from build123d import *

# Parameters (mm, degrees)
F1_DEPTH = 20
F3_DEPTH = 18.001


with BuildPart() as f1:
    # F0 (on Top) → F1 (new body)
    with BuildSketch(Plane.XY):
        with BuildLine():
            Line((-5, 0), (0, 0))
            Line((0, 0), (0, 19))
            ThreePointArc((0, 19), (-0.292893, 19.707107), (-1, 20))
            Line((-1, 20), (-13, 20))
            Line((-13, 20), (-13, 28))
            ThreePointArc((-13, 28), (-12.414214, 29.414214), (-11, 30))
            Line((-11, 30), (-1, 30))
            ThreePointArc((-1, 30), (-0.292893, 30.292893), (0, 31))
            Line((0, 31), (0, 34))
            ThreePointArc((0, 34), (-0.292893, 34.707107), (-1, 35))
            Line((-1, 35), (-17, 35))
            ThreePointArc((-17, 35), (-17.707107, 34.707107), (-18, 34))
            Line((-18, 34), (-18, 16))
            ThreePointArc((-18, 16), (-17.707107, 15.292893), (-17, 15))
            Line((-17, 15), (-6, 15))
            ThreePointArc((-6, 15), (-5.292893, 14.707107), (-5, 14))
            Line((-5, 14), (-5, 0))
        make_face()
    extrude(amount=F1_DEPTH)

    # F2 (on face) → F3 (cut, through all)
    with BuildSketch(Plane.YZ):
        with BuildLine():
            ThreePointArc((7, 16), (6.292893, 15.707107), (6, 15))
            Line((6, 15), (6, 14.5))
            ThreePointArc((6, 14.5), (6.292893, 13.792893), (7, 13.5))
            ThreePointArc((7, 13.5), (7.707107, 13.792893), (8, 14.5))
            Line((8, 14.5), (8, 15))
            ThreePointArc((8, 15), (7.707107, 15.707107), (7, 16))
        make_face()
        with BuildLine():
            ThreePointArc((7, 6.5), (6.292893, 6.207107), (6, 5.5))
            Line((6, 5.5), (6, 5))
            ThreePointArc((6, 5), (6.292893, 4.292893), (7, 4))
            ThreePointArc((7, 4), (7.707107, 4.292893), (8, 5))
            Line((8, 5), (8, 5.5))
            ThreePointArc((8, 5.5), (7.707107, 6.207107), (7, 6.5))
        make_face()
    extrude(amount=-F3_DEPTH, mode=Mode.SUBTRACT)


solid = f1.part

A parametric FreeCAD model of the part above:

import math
import FreeCAD as App
import Part
import Sketcher

doc = App.newDocument("Part")
body = doc.addObject("PartDesign::Body", "Body")

# Sketch on XY plane
sketch1 = doc.addObject("Sketcher::SketchObject", "Sketch")
body.addObject(sketch1)
sketch1.AttachmentSupport = (doc.XY_Plane, [""])
sketch1.MapMode = "FlatFace"
sketch1.addGeometry([
    Part.LineSegment(App.Vector(-5, 0, 0), App.Vector(0, 0, 0)),  # 0
    Part.LineSegment(App.Vector(0, 0, 0), App.Vector(0, 19, 0)),  # 1
    Part.ArcOfCircle(Part.Circle(App.Vector(-1, 19, 0), App.Vector(0, 0, 1), 1), math.radians(0), math.radians(90)),  # 2
    Part.LineSegment(App.Vector(-1, 20, 0), App.Vector(-13, 20, 0)),  # 3
    Part.LineSegment(App.Vector(-13, 20, 0), App.Vector(-13, 28, 0)),  # 4
    Part.ArcOfCircle(Part.Circle(App.Vector(-11, 28, 0), App.Vector(0, 0, 1), 2), math.radians(90), math.radians(180)),  # 5
    Part.LineSegment(App.Vector(-11, 30, 0), App.Vector(-1, 30, 0)),  # 6
    Part.ArcOfCircle(Part.Circle(App.Vector(-1, 31, 0), App.Vector(0, 0, 1), 1), math.radians(-90), math.radians(0)),  # 7
    Part.LineSegment(App.Vector(0, 31, 0), App.Vector(0, 34, 0)),  # 8
    Part.ArcOfCircle(Part.Circle(App.Vector(-1, 34, 0), App.Vector(0, 0, 1), 1), math.radians(0), math.radians(90)),  # 9
    Part.LineSegment(App.Vector(-1, 35, 0), App.Vector(-17, 35, 0)),  # 10
    Part.ArcOfCircle(Part.Circle(App.Vector(-17, 34, 0), App.Vector(0, 0, 1), 1), math.radians(90), math.radians(180)),  # 11
    Part.LineSegment(App.Vector(-18, 34, 0), App.Vector(-18, 16, 0)),  # 12
    Part.ArcOfCircle(Part.Circle(App.Vector(-17, 16, 0), App.Vector(0, 0, 1), 1), math.radians(180), math.radians(270)),  # 13
    Part.LineSegment(App.Vector(-17, 15, 0), App.Vector(-6, 15, 0)),  # 14
    Part.ArcOfCircle(Part.Circle(App.Vector(-6, 14, 0), App.Vector(0, 0, 1), 1), math.radians(0), math.radians(90)),  # 15
    Part.LineSegment(App.Vector(-5, 14, 0), App.Vector(-5, 0, 0)),  # 16
], False)
sketch1.addConstraint([
    Sketcher.Constraint("Coincident", 0, 2, 1, 1),
    Sketcher.Constraint("Tangent", 1, 2, 2, 1),
    Sketcher.Constraint("Tangent", 2, 2, 3, 1),
    Sketcher.Constraint("Coincident", 3, 2, 4, 1),
    Sketcher.Constraint("Tangent", 4, 2, 5, 2),
    Sketcher.Constraint("Tangent", 5, 1, 6, 1),
    Sketcher.Constraint("Tangent", 6, 2, 7, 1),
    Sketcher.Constraint("Tangent", 7, 2, 8, 1),
    Sketcher.Constraint("Tangent", 8, 2, 9, 1),
    Sketcher.Constraint("Tangent", 9, 2, 10, 1),
    Sketcher.Constraint("Tangent", 10, 2, 11, 1),
    Sketcher.Constraint("Tangent", 11, 2, 12, 1),
    Sketcher.Constraint("Tangent", 12, 2, 13, 1),
    Sketcher.Constraint("Tangent", 13, 2, 14, 1),
    Sketcher.Constraint("Tangent", 14, 2, 15, 2),
    Sketcher.Constraint("Tangent", 15, 1, 16, 1),
    Sketcher.Constraint("Coincident", 16, 2, 0, 1),
    Sketcher.Constraint("Horizontal", 0),
    Sketcher.Constraint("Vertical", 1),
    Sketcher.Constraint("Horizontal", 3),
    Sketcher.Constraint("Vertical", 4),
    Sketcher.Constraint("Horizontal", 6),
    Sketcher.Constraint("Vertical", 8),
    Sketcher.Constraint("Horizontal", 10),
    Sketcher.Constraint("Vertical", 12),
    Sketcher.Constraint("Horizontal", 14),
    Sketcher.Constraint("Vertical", 16),
    Sketcher.Constraint("Coincident", 0, 2, -1, 1),
    Sketcher.Constraint("Equal", 2, 7),
    Sketcher.Constraint("Equal", 7, 9),
    Sketcher.Constraint("Equal", 9, 11),
    Sketcher.Constraint("Equal", 11, 13),
    Sketcher.Constraint("Equal", 13, 15),
    Sketcher.Constraint("PointOnObject", 7, 2, -2),
    Sketcher.Constraint("Radius", 2, 0.999999),
    Sketcher.Constraint("Radius", 5, 1.999999),
    Sketcher.Constraint("DistanceX", 0, 1, 0, 2, 5.0),
    Sketcher.Constraint("DistanceX", 3, 2, 3, 1, 12.0),
    Sketcher.Constraint("DistanceX", 10, 2, 10, 1, 16.0),
    Sketcher.Constraint("DistanceY", 1, 1, 1, 2, 19.0),
    Sketcher.Constraint("DistanceY", 4, 1, 4, 2, 8.0),
    Sketcher.Constraint("DistanceY", 8, 1, 8, 2, 3.0),
    Sketcher.Constraint("DistanceY", 12, 2, 12, 1, 18.0),
])
pad1 = doc.addObject("PartDesign::Pad", "Pad")
body.addObject(pad1)
pad1.Profile = sketch1
pad1.Length = 20

# Sketch on YZ plane
sketch2 = doc.addObject("Sketcher::SketchObject", "Sketch001")
body.addObject(sketch2)
sketch2.AttachmentSupport = (doc.YZ_Plane, [""])
sketch2.MapMode = "FlatFace"
sketch2.addGeometry([
    Part.ArcOfCircle(Part.Circle(App.Vector(7, 15, 0), App.Vector(0, 0, 1), 1), math.radians(90), math.radians(180)),  # 0
    Part.LineSegment(App.Vector(6, 15, 0), App.Vector(6, 14.5, 0)),  # 1
    Part.ArcOfCircle(Part.Circle(App.Vector(7, 14.5, 0), App.Vector(0, 0, 1), 1), math.radians(180), math.radians(270)),  # 2
    Part.ArcOfCircle(Part.Circle(App.Vector(7, 14.5, 0), App.Vector(0, 0, 1), 1), math.radians(-90), math.radians(0)),  # 3
    Part.LineSegment(App.Vector(8, 14.5, 0), App.Vector(8, 15, 0)),  # 4
    Part.ArcOfCircle(Part.Circle(App.Vector(7, 15, 0), App.Vector(0, 0, 1), 1), math.radians(0), math.radians(90)),  # 5
    Part.ArcOfCircle(Part.Circle(App.Vector(7, 5.5, 0), App.Vector(0, 0, 1), 1), math.radians(90), math.radians(180)),  # 6
    Part.LineSegment(App.Vector(6, 5.5, 0), App.Vector(6, 5, 0)),  # 7
    Part.ArcOfCircle(Part.Circle(App.Vector(7, 5, 0), App.Vector(0, 0, 1), 1), math.radians(180), math.radians(270)),  # 8
    Part.ArcOfCircle(Part.Circle(App.Vector(7, 5, 0), App.Vector(0, 0, 1), 1), math.radians(-90), math.radians(0)),  # 9
    Part.LineSegment(App.Vector(8, 5, 0), App.Vector(8, 5.5, 0)),  # 10
    Part.ArcOfCircle(Part.Circle(App.Vector(7, 5.5, 0), App.Vector(0, 0, 1), 1), math.radians(0), math.radians(90)),  # 11
], False)
sketch2.addConstraint([
    Sketcher.Constraint("Tangent", 0, 2, 1, 1),
    Sketcher.Constraint("Tangent", 1, 2, 2, 1),
    Sketcher.Constraint("Tangent", 2, 2, 3, 1),
    Sketcher.Constraint("Tangent", 3, 2, 4, 1),
    Sketcher.Constraint("Tangent", 4, 2, 5, 1),
    Sketcher.Constraint("Tangent", 5, 2, 0, 1),
    Sketcher.Constraint("Tangent", 6, 2, 7, 1),
    Sketcher.Constraint("Tangent", 7, 2, 8, 1),
    Sketcher.Constraint("Tangent", 8, 2, 9, 1),
    Sketcher.Constraint("Tangent", 9, 2, 10, 1),
    Sketcher.Constraint("Tangent", 10, 2, 11, 1),
    Sketcher.Constraint("Tangent", 11, 2, 6, 1),
    Sketcher.Constraint("Vertical", 1),
    Sketcher.Constraint("Vertical", 4),
    Sketcher.Constraint("Vertical", 7),
    Sketcher.Constraint("Vertical", 10),
    Sketcher.Constraint("Equal", 0, 2),
    Sketcher.Constraint("Equal", 2, 3),
    Sketcher.Constraint("Equal", 5, 6),
    Sketcher.Constraint("Equal", 6, 8),
    Sketcher.Constraint("Equal", 8, 9),
    Sketcher.Constraint("Vertical", 5, 3, 6, 3),
    Sketcher.Constraint("Vertical", 11, 3, 2, 2),
    Sketcher.Constraint("Vertical", 2, 2, 5, 2),
    Sketcher.Constraint("Vertical", 5, 2, 8, 2),
    Sketcher.Constraint("Vertical", 8, 2, 11, 2),
    Sketcher.Constraint("Equal", 4, 7),
    Sketcher.Constraint("Radius", 0, 0.999999),
    Sketcher.Constraint("DistanceY", 1, 2, 1, 1, 0.5),
    Sketcher.Constraint("DistanceX", -1, 1, 0, 3, 6.999999),
    Sketcher.Constraint("DistanceY", -1, 1, 0, 3, 15.000001),
    Sketcher.Constraint("DistanceY", -1, 1, 8, 3, 4.999999),
])
pocket1 = doc.addObject("PartDesign::Pocket", "Pocket")
body.addObject(pocket1)
pocket1.Profile = sketch2
pocket1.Type = "ThroughAll"

doc.recompute()
